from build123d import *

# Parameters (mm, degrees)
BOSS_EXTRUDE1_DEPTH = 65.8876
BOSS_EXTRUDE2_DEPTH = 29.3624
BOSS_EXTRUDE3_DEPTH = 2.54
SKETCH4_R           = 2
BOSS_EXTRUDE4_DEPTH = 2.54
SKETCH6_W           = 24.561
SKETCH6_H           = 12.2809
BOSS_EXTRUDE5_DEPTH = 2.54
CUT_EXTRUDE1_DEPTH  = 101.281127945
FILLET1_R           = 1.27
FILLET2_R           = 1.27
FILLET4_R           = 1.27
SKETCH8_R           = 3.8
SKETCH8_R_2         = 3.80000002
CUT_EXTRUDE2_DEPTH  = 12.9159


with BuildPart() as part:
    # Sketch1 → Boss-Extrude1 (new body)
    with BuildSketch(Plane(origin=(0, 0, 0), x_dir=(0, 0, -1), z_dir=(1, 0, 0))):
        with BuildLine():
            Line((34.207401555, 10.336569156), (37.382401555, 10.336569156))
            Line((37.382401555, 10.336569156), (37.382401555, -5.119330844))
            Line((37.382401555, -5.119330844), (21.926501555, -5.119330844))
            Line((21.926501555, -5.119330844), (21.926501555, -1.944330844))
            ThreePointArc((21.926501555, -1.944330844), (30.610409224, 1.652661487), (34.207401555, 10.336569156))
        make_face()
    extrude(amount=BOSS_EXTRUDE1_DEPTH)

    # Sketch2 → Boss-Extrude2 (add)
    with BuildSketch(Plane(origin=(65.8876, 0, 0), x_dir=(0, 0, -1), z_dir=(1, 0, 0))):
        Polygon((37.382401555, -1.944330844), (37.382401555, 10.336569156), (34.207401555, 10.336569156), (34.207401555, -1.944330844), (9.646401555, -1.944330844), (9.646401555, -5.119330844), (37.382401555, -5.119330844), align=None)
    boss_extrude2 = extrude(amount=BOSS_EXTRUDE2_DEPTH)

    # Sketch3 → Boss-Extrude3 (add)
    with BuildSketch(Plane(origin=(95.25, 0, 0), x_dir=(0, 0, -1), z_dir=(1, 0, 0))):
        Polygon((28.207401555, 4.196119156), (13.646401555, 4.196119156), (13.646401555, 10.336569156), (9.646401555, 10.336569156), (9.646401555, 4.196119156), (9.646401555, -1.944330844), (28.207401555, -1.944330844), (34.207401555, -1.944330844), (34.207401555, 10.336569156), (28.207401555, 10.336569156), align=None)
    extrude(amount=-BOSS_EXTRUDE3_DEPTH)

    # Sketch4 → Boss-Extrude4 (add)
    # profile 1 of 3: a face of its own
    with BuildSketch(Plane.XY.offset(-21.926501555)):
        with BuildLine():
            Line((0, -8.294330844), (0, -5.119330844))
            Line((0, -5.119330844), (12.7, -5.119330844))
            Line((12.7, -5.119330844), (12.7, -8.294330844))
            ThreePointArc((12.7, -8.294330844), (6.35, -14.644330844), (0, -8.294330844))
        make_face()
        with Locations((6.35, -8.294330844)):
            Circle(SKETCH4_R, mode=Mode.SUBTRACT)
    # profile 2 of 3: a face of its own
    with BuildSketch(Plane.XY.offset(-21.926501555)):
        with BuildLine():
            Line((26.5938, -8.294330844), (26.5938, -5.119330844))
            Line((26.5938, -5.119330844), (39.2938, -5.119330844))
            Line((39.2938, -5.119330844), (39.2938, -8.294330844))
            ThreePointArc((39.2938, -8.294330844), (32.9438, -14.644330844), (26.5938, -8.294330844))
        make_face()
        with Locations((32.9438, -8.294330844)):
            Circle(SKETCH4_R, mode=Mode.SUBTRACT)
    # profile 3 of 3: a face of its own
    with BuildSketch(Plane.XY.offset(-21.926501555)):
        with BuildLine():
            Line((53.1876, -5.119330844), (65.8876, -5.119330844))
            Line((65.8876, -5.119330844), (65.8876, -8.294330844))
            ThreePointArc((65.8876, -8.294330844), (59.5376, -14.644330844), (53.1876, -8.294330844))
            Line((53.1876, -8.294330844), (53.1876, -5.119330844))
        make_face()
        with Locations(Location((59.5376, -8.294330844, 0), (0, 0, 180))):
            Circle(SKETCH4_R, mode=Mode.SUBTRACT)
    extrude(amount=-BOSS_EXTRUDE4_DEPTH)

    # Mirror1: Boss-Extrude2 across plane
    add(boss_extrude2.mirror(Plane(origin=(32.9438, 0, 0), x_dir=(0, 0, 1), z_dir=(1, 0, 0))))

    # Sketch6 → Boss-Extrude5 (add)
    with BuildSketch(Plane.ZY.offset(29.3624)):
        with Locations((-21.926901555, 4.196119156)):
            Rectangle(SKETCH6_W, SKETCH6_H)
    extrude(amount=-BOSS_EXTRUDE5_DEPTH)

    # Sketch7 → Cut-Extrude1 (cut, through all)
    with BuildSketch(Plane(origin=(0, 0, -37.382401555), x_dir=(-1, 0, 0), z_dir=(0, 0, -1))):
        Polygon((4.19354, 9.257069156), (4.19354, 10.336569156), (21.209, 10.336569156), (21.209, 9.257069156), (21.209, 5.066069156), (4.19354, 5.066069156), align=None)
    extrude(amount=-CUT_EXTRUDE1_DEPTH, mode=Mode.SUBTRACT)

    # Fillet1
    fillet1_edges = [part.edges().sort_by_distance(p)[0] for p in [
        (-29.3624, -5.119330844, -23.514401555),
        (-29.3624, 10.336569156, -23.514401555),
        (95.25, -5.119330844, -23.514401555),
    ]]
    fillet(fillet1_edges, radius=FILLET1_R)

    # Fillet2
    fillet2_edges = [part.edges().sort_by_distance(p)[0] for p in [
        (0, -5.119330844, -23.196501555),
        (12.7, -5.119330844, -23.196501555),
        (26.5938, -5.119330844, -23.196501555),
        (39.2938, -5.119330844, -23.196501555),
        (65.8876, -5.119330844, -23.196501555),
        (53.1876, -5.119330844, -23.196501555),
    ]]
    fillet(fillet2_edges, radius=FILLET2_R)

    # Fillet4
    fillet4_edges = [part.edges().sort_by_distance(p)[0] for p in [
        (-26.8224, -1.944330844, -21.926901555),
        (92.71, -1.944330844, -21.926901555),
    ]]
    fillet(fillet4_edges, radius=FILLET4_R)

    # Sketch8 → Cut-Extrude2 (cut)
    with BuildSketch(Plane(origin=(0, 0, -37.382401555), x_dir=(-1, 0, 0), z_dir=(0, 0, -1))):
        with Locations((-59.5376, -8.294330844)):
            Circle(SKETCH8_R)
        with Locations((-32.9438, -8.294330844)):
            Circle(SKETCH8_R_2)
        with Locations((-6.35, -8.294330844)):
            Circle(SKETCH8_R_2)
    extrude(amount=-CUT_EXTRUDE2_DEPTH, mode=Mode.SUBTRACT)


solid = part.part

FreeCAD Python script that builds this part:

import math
import FreeCAD as App
import Part
import Sketcher
Q = App.Units.Quantity


def edges_at(feature, points):
    """Names of the edges that pass closest to the given points."""
    edges = feature.Shape.Edges
    near = lambda p: min(range(len(edges)), key=lambda i: edges[i].distToShape(Part.Vertex(*p))[0])
    return sorted({f"Edge{near(p) + 1}" for p in points})


def add_polygon(sketch, points):
    """Adds a closed chain of lines whose ends are joined by coincident constraints."""
    first, n = sketch.GeometryCount, len(points)
    for a, b in zip(points, points[1:] + points[:1]):
        sketch.addGeometry(Part.LineSegment(App.Vector(*a, 0), App.Vector(*b, 0)), False)
    for i in range(n):
        sketch.addConstraint(Sketcher.Constraint("Coincident", first + i, 2, first + (i + 1) % n, 1))

doc = App.newDocument("Part")
body = doc.addObject("PartDesign::Body", "Body")

sketch1 = doc.addObject("Sketcher::SketchObject", "Sketch")
body.addObject(sketch1)
sketch1.AttachmentSupport = (doc.YZ_Plane, [""])
sketch1.MapMode = "FlatFace"
sketch1.addGeometry([
    Part.LineSegment(App.Vector(10.3, -37.4, 0), App.Vector(10.3, -34.2, 0)),
    Part.ArcOfCircle(Part.Circle(App.Vector(10.3, -21.9, 0), App.Vector(0, 0, 1), 12.3), math.radians(180), math.radians(270)),
    Part.LineSegment(App.Vector(-1.9, -21.9, 0), App.Vector(-5.1, -21.9, 0)),
    Part.LineSegment(App.Vector(-5.1, -21.9, 0), App.Vector(-5.1, -37.4, 0)),
    Part.LineSegment(App.Vector(-5.1, -37.4, 0), App.Vector(10.3, -37.4, 0)),
], False)
sketch1.addConstraint([
    Sketcher.Constraint("Coincident", 0, 2, 1, 2),
    Sketcher.Constraint("Coincident", 1, 1, 2, 1),
    Sketcher.Constraint("Coincident", 2, 2, 3, 1),
    Sketcher.Constraint("Coincident", 3, 2, 4, 1),
    Sketcher.Constraint("Coincident", 4, 2, 0, 1),
    Sketcher.Constraint("Vertical", 0),
    Sketcher.Constraint("Horizontal", 2),
    Sketcher.Constraint("Vertical", 3),
    Sketcher.Constraint("Horizontal", 4),
    Sketcher.Constraint("Vertical", 1, 3, 0, 2),
    Sketcher.Constraint("Equal", 2, 0),
    Sketcher.Constraint("Equal", 4, 3),
    Sketcher.Constraint("Radius", 1, Q("0.4835 in")),
    Sketcher.Constraint("DistanceX", 2, 2, 2, 1, Q("0.125 in")),
    Sketcher.Constraint("DistanceY", 1, 3, -1, 1, 21.926502),
    Sketcher.Constraint("DistanceX", -1, 1, 1, 3, 10.336569),
])
pad1 = doc.addObject("PartDesign::Pad", "Pad")
body.addObject(pad1)
pad1.Profile = sketch1
pad1.Length = Q("2.594 in")

sketch2 = doc.addObject("Sketcher::SketchObject", "Sketch001")
body.addObject(sketch2)
sketch2.AttachmentSupport = (doc.YZ_Plane, [""])
sketch2.MapMode = "FlatFace"
sketch2.AttachmentOffset = App.Placement(App.Vector(0, 0, 2.594 * 25.4), App.Rotation())
add_polygon(sketch2, [(10.3, -37.4), (10.3, -34.2), (-1.9, -34.2), (-1.9, -9.6), (-5.1, -9.6), (-5.1, -37.4)])
sketch2.addConstraint([
    Sketcher.Constraint("Vertical", 0),
    Sketcher.Constraint("Horizontal", 1),
    Sketcher.Constraint("Vertical", 2),
    Sketcher.Constraint("Horizontal", 3),
    Sketcher.Constraint("Vertical", 4),
    Sketcher.Constraint("Horizontal", 5),
    Sketcher.Constraint("Equal", 3, 0),
    Sketcher.Constraint("DistanceX", 3, 2, 3, 1, Q("0.125 in")),
    Sketcher.Constraint("DistanceX", 1, 2, 1, 1, Q("0.4835 in")),
    Sketcher.Constraint("DistanceY", 2, 1, 2, 2, 24.561),
    Sketcher.Constraint("DistanceY", 0, 2, -1, 1, 34.207402),
    Sketcher.Constraint("DistanceX", -1, 1, 0, 2, 10.336569),
])
pad2 = doc.addObject("PartDesign::Pad", "Pad001")
body.addObject(pad2)
pad2.Profile = sketch2
pad2.Length = Q("1.156 in")

sketch3 = doc.addObject("Sketcher::SketchObject", "Sketch002")
body.addObject(sketch3)
sketch3.AttachmentSupport = (doc.YZ_Plane, [""])
sketch3.MapMode = "FlatFace"
sketch3.AttachmentOffset = App.Placement(App.Vector(0, 0, 3.75 * 25.4), App.Rotation())
add_polygon(sketch3, [(4.2, -28.2), (4.2, -13.6), (10.3, -13.6), (10.3, -9.6), (-1.9, -9.6), (-1.9, -34.2), (10.3, -34.2), (10.3, -28.2)])
sketch3.addConstraint([
    Sketcher.Constraint("Vertical", 0),
    Sketcher.Constraint("Horizontal", 1),
    Sketcher.Constraint("Vertical", 2),
    Sketcher.Constraint("Horizontal", 3),
    Sketcher.Constraint("Vertical", 4),
    Sketcher.Constraint("Horizontal", 5),
    Sketcher.Constraint("Vertical", 6),
    Sketcher.Constraint("Horizontal", 7),
    Sketcher.Constraint("Vertical", 2, 2, 5, 2),
    Sketcher.Constraint("DistanceX", 3, 2, 3, 1, Q("0.4835 in")),
    Sketcher.Constraint("DistanceY", 0, 1, 0, 2, 14.561),
    Sketcher.Constraint("DistanceY", 2, 1, 2, 2, 4.0),
    Sketcher.Constraint("DistanceY", 4, 2, 4, 1, 24.561),
    Sketcher.Constraint("DistanceX", 1, 1, 1, 2, 6.14045),
    Sketcher.Constraint("DistanceY", 0, 2, -1, 1, 13.646402),
    Sketcher.Constraint("DistanceX", -1, 1, 0, 2, 4.196119),
])
pad3 = doc.addObject("PartDesign::Pad", "Pad002")
body.addObject(pad3)
pad3.Profile = sketch3
pad3.Length = Q("0.1 in")
pad3.Reversed = True

sketch4 = doc.addObject("Sketcher::SketchObject", "Sketch003")
body.addObject(sketch4)
sketch4.AttachmentSupport = (doc.XY_Plane, [""])
sketch4.MapMode = "FlatFace"
sketch4.AttachmentOffset = App.Placement(App.Vector(0, 0, -21.926502), App.Rotation())
sketch4.addGeometry([
    Part.LineSegment(App.Vector(0, -5.1, 0), App.Vector(0, -8.3, 0)),
    Part.ArcOfCircle(Part.Circle(App.Vector(6.3, -8.3, 0), App.Vector(0, 0, 1), 6.3), math.radians(180), math.radians(360)),
    Part.LineSegment(App.Vector(12.7, -8.3, 0), App.Vector(12.7, -5.1, 0)),
    Part.LineSegment(App.Vector(12.7, -5.1, 0), App.Vector(0, -5.1, 0)),
    Part.Circle(App.Vector(6.3, -8.3, 0), App.Vector(0, 0, 1), 2),
    Part.LineSegment(App.Vector(26.6, -5.1, 0), App.Vector(26.6, -8.3, 0)),
    Part.ArcOfCircle(Part.Circle(App.Vector(32.9, -8.3, 0), App.Vector(0, 0, 1), 6.3), math.radians(180), math.radians(360)),
    Part.LineSegment(App.Vector(39.3, -8.3, 0), App.Vector(39.3, -5.1, 0)),
    Part.LineSegment(App.Vector(39.3, -5.1, 0), App.Vector(26.6, -5.1, 0)),
    Part.Circle(App.Vector(32.9, -8.3, 0), App.Vector(0, 0, 1), 2),
    Part.LineSegment(App.Vector(65.9, -5.1, 0), App.Vector(53.2, -5.1, 0)),
    Part.LineSegment(App.Vector(53.2, -5.1, 0), App.Vector(53.2, -8.3, 0)),
    Part.ArcOfCircle(Part.Circle(App.Vector(59.5, -8.3, 0), App.Vector(0, 0, 1), 6.3), math.radians(180), math.radians(360)),
    Part.LineSegment(App.Vector(65.9, -8.3, 0), App.Vector(65.9, -5.1, 0)),
    Part.Circle(App.Vector(59.5, -8.3, 0), App.Vector(0, 0, 1), 2),
], False)
sketch4.addConstraint([
    Sketcher.Constraint("Tangent", 0, 2, 1, 1),
    Sketcher.Constraint("Tangent", 1, 2, 2, 1),
    Sketcher.Constraint("Coincident", 2, 2, 3, 1),
    Sketcher.Constraint("Coincident", 3, 2, 0, 1),
    Sketcher.Constraint("Tangent", 5, 2, 6, 1),
    Sketcher.Constraint("Tangent", 6, 2, 7, 1),
    Sketcher.Constraint("Coincident", 7, 2, 8, 1),
    Sketcher.Constraint("Coincident", 8, 2, 5, 1),
    Sketcher.Constraint("Coincident", 10, 2, 11, 1),
    Sketcher.Constraint("Tangent", 11, 2, 12, 1),
    Sketcher.Constraint("Tangent", 12, 2, 13, 1),
    Sketcher.Constraint("Coincident", 13, 2, 10, 1),
    Sketcher.Constraint("Vertical", 0),
    Sketcher.Constraint("Vertical", 2),
    Sketcher.Constraint("Horizontal", 3),
    Sketcher.Constraint("Vertical", 5),
    Sketcher.Constraint("Vertical", 7),
    Sketcher.Constraint("Horizontal", 8),
    Sketcher.Constraint("Horizontal", 10),
    Sketcher.Constraint("Vertical", 11),
    Sketcher.Constraint("Vertical", 13),
    Sketcher.Constraint("Coincident", 4, 3, 1, 3),
    Sketcher.Constraint("Coincident", 9, 3, 6, 3),
    Sketcher.Constraint("Coincident", 14, 3, 12, 3),
    Sketcher.Constraint("Equal", 1, 6),
    Sketcher.Constraint("Equal", 4, 9),
    Sketcher.Constraint("Equal", 6, 12),
    Sketcher.Constraint("Equal", 9, 14),
    Sketcher.Constraint("PointOnObject", 0, 2, -2),
    Sketcher.Constraint("Horizontal", 4, 3, 6, 3),
    Sketcher.Constraint("Horizontal", 9, 3, 12, 3),
    Sketcher.Constraint("Horizontal", 3, 2, 7, 2),
    Sketcher.Constraint("Horizontal", 8, 2, 10, 2),
    Sketcher.Constraint("Radius", 1, Q("0.25 in")),
    Sketcher.Constraint("Diameter", 4, 4.0),
    Sketcher.Constraint("DistanceY", 0, 2, 0, 1, Q("0.125 in")),
    Sketcher.Constraint("DistanceX", -1, 1, 6, 3, Q("1.297 in")),
    Sketcher.Constraint("DistanceX", -1, 1, 12, 3, Q("2.344 in")),
    Sketcher.Constraint("DistanceY", 1, 3, -1, 1, 8.294331),
])
pad4 = doc.addObject("PartDesign::Pad", "Pad003")
body.addObject(pad4)
pad4.Profile = sketch4
pad4.Length = Q("0.1 in")
pad4.Reversed = True
doc.recompute()

datumplane = doc.addObject("PartDesign::Plane", "DatumPlane")
body.addObject(datumplane)
datumplane.AttachmentSupport = (doc.YZ_Plane, [""])
datumplane.MapMode = "FlatFace"
datumplane.AttachmentOffset = App.Placement(App.Vector(0, 0, 1.297 * 25.4), App.Rotation())
mirrored = doc.addObject("PartDesign::Mirrored", "Mirrored")
body.addObject(mirrored)
mirrored.Originals = [pad2]
mirrored.MirrorPlane = (datumplane, [""])
body.Tip = mirrored

sketch5 = doc.addObject("Sketcher::SketchObject", "Sketch004")
body.addObject(sketch5)
sketch5.AttachmentSupport = (doc.YZ_Plane, [""])
sketch5.MapMode = "FlatFace"
sketch5.AttachmentOffset = App.Placement(App.Vector(0, 0, -1.156 * 25.4), App.Rotation())
add_polygon(sketch5, [(10, -34), (-2, -34), (-2, -10), (10, -10)])
sketch5.addConstraint([
    Sketcher.Constraint("Horizontal", 0),
    Sketcher.Constraint("Vertical", 1),
    Sketcher.Constraint("Horizontal", 2),
    Sketcher.Constraint("Vertical", 3),
    Sketcher.Constraint("DistanceX", 0, 2, 0, 1, Q("0.4835 in")),
    Sketcher.Constraint("DistanceY", 1, 1, 1, 2, 24.561),
    Sketcher.Constraint("DistanceY", 0, 2, -1, 1, 34.207402),
    Sketcher.Constraint("DistanceX", 0, 2, -1, 1, 1.944331),
])
pad5 = doc.addObject("PartDesign::Pad", "Pad004")
body.addObject(pad5)
pad5.Profile = sketch5
pad5.Length = Q("0.1 in")

sketch6 = doc.addObject("Sketcher::SketchObject", "Sketch005")
body.addObject(sketch6)
sketch6.AttachmentSupport = (doc.XY_Plane, [""])
sketch6.MapMode = "FlatFace"
sketch6.AttachmentOffset = App.Placement(App.Vector(0, 0, -37.382402), App.Rotation())
add_polygon(sketch6, [(-4, 10), (-4, 5), (-21, 5), (-21, 10)])
sketch6.addConstraint([
    Sketcher.Constraint("Vertical", 0),
    Sketcher.Constraint("Horizontal", 1),
    Sketcher.Constraint("Vertical", 2),
    Sketcher.Constraint("Horizontal", 3),
    Sketcher.Constraint("DistanceX", 1, 2, 1, 1, Q("0.6699 in")),
    Sketcher.Constraint("DistanceY", 0, 2, 0, 1, Q("0.2075 in")),
    Sketcher.Constraint("DistanceX", 1, 2, -1, 1, Q("0.835 in")),
    Sketcher.Constraint("DistanceY", -1, 1, 0, 2, 5.066069),
])
pocket1 = doc.addObject("PartDesign::Pocket", "Pocket")
body.addObject(pocket1)
pocket1.Profile = sketch6
pocket1.Type = "ThroughAll"
pocket1.Reversed = True
doc.recompute()

fillet = doc.addObject("PartDesign::Fillet", "Fillet")
body.addObject(fillet)
fillet.Base = (pocket1, edges_at(pocket1, [(-29.362, -5.119, -23.514), (-29.362, 10.337, -23.514), (95.25, -5.119, -23.514)]))
fillet.Radius = Q("0.05 in")
doc.recompute()

fillet2 = doc.addObject("PartDesign::Fillet", "Fillet001")
body.addObject(fillet2)
fillet2.Base = (fillet, edges_at(fillet, [
    (0, -5.119, -23.197),
    (12.7, -5.119, -23.197),
    (26.594, -5.119, -23.197),
    (39.294, -5.119, -23.197),
    (65.888, -5.119, -23.197),
    (53.188, -5.119, -23.197),
]))
fillet2.Radius = Q("0.05 in")
doc.recompute()

fillet3 = doc.addObject("PartDesign::Fillet", "Fillet002")
body.addObject(fillet3)
fillet3.Base = (fillet2, edges_at(fillet2, [(-26.822, -1.944, -21.927), (92.71, -1.944, -21.927)]))
fillet3.Radius = Q("0.05 in")

sketch7 = doc.addObject("Sketcher::SketchObject", "Sketch006")
body.addObject(sketch7)
sketch7.AttachmentSupport = (doc.XY_Plane, [""])
sketch7.MapMode = "FlatFace"
sketch7.AttachmentOffset = App.Placement(App.Vector(0, 0, -37.382402), App.Rotation())
sketch7.addGeometry([
    Part.Circle(App.Vector(59.5, -8.3, 0), App.Vector(0, 0, 1), 3.8),
    Part.Circle(App.Vector(32.9, -8.3, 0), App.Vector(0, 0, 1), 3.8),
    Part.Circle(App.Vector(6.3, -8.3, 0), App.Vector(0, 0, 1), 3.8),
], False)
sketch7.addConstraint([
    Sketcher.Constraint("Equal", 0, 1),
    Sketcher.Constraint("Equal", 1, 2),
    Sketcher.Constraint("Horizontal", 0, 3, 1, 3),
    Sketcher.Constraint("Horizontal", 1, 3, 2, 3),
    Sketcher.Constraint("Diameter", 0, 7.6),
    Sketcher.Constraint("DistanceX", -1, 1, 2, 3, Q("0.25 in")),
    Sketcher.Constraint("DistanceX", -1, 1, 0, 3, Q("2.344 in")),
    Sketcher.Constraint("DistanceX", -1, 1, 1, 3, Q("1.297 in")),
    Sketcher.Constraint("DistanceY", 0, 3, -1, 1, 8.294331),
])
pocket2 = doc.addObject("PartDesign::Pocket", "Pocket001")
body.addObject(pocket2)
pocket2.Profile = sketch7
pocket2.Length = Q("0.5085 in")
pocket2.Reversed = True

doc.recompute()
